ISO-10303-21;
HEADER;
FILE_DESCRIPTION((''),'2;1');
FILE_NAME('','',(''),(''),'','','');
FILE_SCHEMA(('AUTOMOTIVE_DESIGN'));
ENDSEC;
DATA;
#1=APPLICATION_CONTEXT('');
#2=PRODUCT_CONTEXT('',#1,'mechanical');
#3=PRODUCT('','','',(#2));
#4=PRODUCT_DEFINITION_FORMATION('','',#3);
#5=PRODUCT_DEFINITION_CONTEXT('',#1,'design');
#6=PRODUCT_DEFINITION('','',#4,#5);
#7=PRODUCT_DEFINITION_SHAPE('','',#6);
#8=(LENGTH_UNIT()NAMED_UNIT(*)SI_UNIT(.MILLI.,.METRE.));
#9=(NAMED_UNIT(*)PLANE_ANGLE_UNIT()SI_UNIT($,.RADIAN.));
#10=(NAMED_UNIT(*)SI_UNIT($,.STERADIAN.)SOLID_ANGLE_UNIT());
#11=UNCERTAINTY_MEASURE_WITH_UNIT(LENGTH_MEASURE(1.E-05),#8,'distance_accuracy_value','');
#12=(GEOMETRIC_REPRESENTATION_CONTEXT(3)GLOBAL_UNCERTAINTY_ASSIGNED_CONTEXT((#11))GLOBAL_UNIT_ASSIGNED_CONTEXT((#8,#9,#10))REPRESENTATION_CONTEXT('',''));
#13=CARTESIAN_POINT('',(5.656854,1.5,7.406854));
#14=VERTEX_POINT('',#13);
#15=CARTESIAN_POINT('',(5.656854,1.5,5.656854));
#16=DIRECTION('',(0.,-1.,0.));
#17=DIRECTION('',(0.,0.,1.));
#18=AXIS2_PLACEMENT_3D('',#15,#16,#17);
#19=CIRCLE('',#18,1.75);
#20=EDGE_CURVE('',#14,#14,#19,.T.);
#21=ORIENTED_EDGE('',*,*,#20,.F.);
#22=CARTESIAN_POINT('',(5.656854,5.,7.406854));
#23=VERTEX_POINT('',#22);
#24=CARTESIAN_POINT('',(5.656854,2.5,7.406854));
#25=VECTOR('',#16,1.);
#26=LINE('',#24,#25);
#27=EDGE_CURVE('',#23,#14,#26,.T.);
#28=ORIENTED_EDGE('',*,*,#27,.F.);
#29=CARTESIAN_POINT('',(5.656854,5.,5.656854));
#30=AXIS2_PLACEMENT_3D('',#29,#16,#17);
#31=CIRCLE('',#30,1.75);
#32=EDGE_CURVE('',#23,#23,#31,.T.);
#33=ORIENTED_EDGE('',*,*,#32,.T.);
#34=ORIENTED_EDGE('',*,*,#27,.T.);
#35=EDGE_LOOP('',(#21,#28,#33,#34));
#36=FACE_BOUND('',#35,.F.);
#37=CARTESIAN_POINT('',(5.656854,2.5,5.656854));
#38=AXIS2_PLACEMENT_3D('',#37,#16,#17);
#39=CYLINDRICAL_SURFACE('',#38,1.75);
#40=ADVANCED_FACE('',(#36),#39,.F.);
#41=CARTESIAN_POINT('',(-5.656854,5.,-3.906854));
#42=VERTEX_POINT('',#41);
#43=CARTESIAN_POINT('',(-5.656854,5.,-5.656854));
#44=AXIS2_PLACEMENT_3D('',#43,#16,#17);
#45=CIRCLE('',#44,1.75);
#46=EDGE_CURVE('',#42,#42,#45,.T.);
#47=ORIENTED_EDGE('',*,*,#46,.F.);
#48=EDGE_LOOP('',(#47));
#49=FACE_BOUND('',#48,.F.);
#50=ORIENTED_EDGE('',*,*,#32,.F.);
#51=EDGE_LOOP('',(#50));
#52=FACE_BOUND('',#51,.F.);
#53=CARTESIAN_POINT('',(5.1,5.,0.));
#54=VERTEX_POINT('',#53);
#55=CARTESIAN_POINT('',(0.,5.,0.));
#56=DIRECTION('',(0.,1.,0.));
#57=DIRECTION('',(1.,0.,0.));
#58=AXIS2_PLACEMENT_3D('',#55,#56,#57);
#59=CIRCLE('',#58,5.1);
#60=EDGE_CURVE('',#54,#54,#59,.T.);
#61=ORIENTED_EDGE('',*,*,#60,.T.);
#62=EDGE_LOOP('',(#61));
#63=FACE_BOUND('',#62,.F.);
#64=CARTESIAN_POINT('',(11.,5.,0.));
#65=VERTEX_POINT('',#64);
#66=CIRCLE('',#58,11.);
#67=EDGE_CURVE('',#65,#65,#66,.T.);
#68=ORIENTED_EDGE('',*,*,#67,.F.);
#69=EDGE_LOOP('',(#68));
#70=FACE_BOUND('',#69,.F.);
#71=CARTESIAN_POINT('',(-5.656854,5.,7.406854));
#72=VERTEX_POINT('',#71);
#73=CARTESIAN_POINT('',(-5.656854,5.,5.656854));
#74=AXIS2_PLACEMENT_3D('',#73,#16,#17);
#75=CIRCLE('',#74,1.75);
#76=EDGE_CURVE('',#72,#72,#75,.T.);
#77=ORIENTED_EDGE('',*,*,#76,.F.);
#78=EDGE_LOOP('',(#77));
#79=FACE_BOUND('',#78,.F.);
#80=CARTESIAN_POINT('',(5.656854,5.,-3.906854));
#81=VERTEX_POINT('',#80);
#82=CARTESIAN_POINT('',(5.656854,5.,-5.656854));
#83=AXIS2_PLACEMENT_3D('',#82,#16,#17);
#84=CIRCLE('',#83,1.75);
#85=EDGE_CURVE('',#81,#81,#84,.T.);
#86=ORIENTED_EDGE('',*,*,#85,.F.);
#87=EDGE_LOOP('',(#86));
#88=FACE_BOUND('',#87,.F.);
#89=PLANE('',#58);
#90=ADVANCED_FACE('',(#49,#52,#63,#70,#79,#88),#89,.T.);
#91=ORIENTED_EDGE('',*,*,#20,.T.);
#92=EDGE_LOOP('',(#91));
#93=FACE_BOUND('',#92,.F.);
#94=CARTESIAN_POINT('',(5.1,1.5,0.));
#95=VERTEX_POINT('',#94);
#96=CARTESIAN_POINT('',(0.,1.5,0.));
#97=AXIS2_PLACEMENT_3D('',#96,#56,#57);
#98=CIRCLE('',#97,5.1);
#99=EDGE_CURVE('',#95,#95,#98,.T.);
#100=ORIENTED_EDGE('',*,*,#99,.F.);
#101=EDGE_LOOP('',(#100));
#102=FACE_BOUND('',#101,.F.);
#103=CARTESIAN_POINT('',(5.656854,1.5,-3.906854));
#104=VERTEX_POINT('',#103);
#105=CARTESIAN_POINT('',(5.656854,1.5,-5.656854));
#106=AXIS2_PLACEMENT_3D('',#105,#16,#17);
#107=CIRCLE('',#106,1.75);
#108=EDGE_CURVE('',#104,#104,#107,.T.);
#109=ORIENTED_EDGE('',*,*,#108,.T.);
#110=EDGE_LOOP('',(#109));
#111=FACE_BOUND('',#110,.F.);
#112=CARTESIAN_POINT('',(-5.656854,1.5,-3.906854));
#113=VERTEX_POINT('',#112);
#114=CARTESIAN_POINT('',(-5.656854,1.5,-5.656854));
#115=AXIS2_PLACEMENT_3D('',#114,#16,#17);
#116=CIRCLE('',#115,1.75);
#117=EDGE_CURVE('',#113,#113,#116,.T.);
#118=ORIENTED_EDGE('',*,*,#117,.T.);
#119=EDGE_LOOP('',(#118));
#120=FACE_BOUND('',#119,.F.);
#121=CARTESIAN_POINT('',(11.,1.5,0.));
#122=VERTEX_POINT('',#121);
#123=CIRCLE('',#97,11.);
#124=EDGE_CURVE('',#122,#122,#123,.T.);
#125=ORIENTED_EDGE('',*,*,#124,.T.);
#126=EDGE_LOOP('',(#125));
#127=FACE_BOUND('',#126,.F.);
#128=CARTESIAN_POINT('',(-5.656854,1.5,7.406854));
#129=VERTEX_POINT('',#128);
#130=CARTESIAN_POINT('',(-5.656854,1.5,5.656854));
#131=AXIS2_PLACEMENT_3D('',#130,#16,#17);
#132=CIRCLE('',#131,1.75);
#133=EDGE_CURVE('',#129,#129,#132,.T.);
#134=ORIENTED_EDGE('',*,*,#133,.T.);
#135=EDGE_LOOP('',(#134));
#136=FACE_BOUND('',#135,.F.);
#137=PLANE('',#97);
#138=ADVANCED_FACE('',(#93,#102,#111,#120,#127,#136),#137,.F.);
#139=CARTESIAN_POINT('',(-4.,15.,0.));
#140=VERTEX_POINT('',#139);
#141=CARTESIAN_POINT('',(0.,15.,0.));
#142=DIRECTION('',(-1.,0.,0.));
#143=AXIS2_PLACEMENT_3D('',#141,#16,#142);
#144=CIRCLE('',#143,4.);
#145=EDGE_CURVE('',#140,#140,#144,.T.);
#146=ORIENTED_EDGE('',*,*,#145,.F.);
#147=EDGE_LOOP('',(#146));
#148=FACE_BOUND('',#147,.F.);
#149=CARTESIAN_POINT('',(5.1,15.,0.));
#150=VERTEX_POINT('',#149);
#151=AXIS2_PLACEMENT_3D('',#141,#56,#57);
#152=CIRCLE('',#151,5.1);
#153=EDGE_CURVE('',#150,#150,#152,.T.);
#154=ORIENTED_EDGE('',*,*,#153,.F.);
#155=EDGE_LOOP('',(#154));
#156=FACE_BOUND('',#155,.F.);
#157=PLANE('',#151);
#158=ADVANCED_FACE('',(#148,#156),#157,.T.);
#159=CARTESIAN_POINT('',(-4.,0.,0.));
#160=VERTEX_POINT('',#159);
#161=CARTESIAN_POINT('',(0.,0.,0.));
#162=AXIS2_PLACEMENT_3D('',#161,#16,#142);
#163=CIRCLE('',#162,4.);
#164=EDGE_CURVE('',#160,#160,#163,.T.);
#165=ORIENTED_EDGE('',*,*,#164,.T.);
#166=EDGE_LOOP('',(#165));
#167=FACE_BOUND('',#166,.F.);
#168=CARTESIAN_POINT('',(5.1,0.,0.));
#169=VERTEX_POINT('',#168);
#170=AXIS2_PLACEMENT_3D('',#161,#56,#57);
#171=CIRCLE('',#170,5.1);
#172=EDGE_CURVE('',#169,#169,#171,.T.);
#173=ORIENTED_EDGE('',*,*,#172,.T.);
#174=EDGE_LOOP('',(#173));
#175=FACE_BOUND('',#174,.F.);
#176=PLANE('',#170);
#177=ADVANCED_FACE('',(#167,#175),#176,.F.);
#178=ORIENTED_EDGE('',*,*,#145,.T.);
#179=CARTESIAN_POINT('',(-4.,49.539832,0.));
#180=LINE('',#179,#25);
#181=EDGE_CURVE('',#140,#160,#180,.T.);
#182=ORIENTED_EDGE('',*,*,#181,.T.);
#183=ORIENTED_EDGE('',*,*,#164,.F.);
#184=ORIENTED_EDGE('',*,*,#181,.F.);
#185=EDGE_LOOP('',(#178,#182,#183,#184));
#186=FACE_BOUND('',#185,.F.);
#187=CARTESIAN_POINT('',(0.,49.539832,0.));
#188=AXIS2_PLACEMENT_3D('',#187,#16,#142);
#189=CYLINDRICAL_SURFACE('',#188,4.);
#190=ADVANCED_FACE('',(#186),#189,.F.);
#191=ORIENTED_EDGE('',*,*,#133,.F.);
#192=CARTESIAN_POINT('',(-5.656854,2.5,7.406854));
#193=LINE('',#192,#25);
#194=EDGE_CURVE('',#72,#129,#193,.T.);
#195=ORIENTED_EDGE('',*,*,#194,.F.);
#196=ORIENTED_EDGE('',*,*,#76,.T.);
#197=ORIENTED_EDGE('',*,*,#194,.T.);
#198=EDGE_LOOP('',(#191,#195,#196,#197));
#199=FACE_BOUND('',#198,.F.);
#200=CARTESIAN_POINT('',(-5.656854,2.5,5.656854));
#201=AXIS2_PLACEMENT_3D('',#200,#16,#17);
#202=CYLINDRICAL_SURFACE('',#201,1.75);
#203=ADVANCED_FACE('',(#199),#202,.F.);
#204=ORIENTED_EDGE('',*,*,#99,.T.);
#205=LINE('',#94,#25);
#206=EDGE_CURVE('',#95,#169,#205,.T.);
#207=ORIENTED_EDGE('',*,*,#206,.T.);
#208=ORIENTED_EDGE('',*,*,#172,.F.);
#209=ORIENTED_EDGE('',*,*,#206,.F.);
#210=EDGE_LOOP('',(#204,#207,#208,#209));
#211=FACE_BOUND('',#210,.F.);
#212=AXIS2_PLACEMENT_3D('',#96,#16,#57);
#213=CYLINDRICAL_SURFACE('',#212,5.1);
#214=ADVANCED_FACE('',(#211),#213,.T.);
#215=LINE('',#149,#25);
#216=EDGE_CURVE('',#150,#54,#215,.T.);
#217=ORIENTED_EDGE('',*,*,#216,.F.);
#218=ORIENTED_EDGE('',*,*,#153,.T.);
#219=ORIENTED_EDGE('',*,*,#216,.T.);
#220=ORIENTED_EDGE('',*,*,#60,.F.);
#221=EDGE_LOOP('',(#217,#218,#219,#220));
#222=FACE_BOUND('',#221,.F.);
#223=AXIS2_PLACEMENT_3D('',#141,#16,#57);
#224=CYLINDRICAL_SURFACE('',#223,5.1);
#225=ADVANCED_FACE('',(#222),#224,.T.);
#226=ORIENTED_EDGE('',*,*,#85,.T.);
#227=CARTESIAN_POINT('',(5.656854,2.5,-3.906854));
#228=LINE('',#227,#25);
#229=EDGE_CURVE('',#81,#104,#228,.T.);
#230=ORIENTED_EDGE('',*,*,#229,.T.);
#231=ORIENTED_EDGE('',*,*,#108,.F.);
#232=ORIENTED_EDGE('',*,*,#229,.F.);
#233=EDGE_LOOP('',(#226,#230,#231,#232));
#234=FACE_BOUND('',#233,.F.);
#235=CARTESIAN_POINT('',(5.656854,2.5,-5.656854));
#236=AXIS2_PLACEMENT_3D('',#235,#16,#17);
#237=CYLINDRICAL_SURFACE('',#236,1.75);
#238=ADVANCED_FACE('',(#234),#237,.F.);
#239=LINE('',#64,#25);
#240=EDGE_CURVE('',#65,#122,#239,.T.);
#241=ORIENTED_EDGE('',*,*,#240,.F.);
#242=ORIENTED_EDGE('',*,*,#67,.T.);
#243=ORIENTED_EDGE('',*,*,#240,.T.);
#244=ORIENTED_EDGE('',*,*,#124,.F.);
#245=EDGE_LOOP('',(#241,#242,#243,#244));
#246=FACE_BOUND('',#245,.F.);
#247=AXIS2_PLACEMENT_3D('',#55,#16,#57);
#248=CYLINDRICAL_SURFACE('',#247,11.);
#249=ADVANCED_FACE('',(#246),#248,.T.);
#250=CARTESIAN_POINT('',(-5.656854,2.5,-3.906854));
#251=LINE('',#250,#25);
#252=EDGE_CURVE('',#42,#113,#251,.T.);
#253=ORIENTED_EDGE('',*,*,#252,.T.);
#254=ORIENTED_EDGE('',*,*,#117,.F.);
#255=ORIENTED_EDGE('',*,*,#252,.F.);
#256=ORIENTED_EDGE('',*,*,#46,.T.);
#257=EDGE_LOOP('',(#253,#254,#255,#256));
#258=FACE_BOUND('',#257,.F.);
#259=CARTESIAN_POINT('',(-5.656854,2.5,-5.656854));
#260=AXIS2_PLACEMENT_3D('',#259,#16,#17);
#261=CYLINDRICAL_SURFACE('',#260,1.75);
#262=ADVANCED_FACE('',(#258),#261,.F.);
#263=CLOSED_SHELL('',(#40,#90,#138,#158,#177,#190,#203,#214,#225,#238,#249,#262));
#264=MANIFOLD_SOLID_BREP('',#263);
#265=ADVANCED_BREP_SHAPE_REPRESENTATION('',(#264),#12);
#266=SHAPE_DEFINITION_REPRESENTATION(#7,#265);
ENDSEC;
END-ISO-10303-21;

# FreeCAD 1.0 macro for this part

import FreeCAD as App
import Part
import Sketcher

doc = App.newDocument("Part")
body = doc.addObject("PartDesign::Body", "Body")

# Sketch on XY plane
sketch1 = body.newObject("Sketcher::SketchObject", "Sketch")
sketch1.AttachmentSupport = (doc.getObject("XY_Plane"), [""])
sketch1.MapMode = "FlatFace"
sketch1.addGeometry([
    Part.LineSegment(App.Vector(0, 15, 0), App.Vector(0, 0, 0)),  # 0
    Part.LineSegment(App.Vector(0, 0, 0), App.Vector(5.1, 0, 0)),  # 1
    Part.LineSegment(App.Vector(5.1, 0, 0), App.Vector(5.1, 1.5, 0)),  # 2
    Part.LineSegment(App.Vector(5.1, 1.5, 0), App.Vector(11, 1.5, 0)),  # 3
    Part.LineSegment(App.Vector(11, 1.5, 0), App.Vector(11, 5, 0)),  # 4
    Part.LineSegment(App.Vector(11, 5, 0), App.Vector(5.1, 5, 0)),  # 5
    Part.LineSegment(App.Vector(5.1, 5, 0), App.Vector(5.1, 15, 0)),  # 6
    Part.LineSegment(App.Vector(5.1, 15, 0), App.Vector(0, 15, 0)),  # 7
], False)
sketch1.addConstraint([
    Sketcher.Constraint("Coincident", 0, 2, 1, 1),
    Sketcher.Constraint("Coincident", 1, 2, 2, 1),
    Sketcher.Constraint("Coincident", 2, 2, 3, 1),
    Sketcher.Constraint("Coincident", 3, 2, 4, 1),
    Sketcher.Constraint("Coincident", 4, 2, 5, 1),
    Sketcher.Constraint("Coincident", 5, 2, 6, 1),
    Sketcher.Constraint("Coincident", 6, 2, 7, 1),
    Sketcher.Constraint("Coincident", 7, 2, 0, 1),
    Sketcher.Constraint("Vertical", 0),
    Sketcher.Constraint("Horizontal", 1),
    Sketcher.Constraint("Vertical", 2),
    Sketcher.Constraint("Horizontal", 3),
    Sketcher.Constraint("Vertical", 4),
    Sketcher.Constraint("Horizontal", 5),
    Sketcher.Constraint("Vertical", 6),
    Sketcher.Constraint("Horizontal", 7),
    Sketcher.Constraint("Coincident", 0, 2, -1, 1),
    Sketcher.Constraint("Vertical", 2, 2, 5, 2),
    Sketcher.Constraint("DistanceY", 0, 2, 0, 1, 15.0),
    Sketcher.Constraint("DistanceY", 6, 1, 6, 2, 10.0),
    Sketcher.Constraint("DistanceX", 1, 1, 1, 2, 5.1),
    Sketcher.Constraint("DistanceX", 3, 1, 3, 2, 5.9),
    Sketcher.Constraint("DistanceY", 2, 1, 2, 2, 1.5),
])
revolution = body.newObject("PartDesign::Revolution", "Revolution")
revolution.Profile = sketch1
revolution.ReferenceAxis = (sketch1, ["V_Axis"])
revolution.Angle = 360

# Sketch on YZ plane
sketch2 = body.newObject("Sketcher::SketchObject", "Sketch001")
sketch2.AttachmentSupport = (doc.getObject("YZ_Plane"), [""])
sketch2.MapMode = "FlatFace"
sketch2.AttachmentOffset = App.Placement(App.Vector(0, 0, -5.656854), App.Rotation())
sketch2.addGeometry([
    Part.LineSegment(App.Vector(0, 5.7, 0), App.Vector(5, 5.7, 0)),
    Part.LineSegment(App.Vector(5, 5.7, 0), App.Vector(5, 7.4, 0)),
    Part.LineSegment(App.Vector(5, 7.4, 0), App.Vector(0, 7.4, 0)),
    Part.LineSegment(App.Vector(0, 7.4, 0), App.Vector(0, 5.7, 0)),
], False)
sketch2.addGeometry(Part.LineSegment(App.Vector(5, 5.7, 0), App.Vector(0, 5.7, 0)), True)  # axis
sketch2.addConstraint([
    Sketcher.Constraint("Coincident", 0, 2, 1, 1),
    Sketcher.Constraint("Coincident", 1, 2, 2, 1),
    Sketcher.Constraint("Coincident", 2, 2, 3, 1),
    Sketcher.Constraint("Coincident", 3, 2, 0, 1),
    Sketcher.Constraint("Horizontal", 0),
    Sketcher.Constraint("Vertical", 1),
    Sketcher.Constraint("Horizontal", 2),
    Sketcher.Constraint("Vertical", 3),
    Sketcher.Constraint("Horizontal", 4),
    Sketcher.Constraint("Coincident", 4, 1, 0, 2),
    Sketcher.Constraint("PointOnObject", 2, 2, -2),
    Sketcher.Constraint("PointOnObject", 4, 2, -2),
    Sketcher.Constraint("DistanceX", 0, 1, 0, 2, 5.0),
    Sketcher.Constraint("DistanceY", 1, 1, 1, 2, 1.75),
    Sketcher.Constraint("DistanceY", -1, 1, 0, 2, 5.656854),
])
groove = body.newObject("PartDesign::Groove", "Groove")
groove.Profile = sketch2
groove.ReferenceAxis = (sketch2, ["Axis0"])
groove.Angle = 360
doc.recompute()

linearpattern = body.newObject("PartDesign::LinearPattern", "LinearPattern")
linearpattern.Originals = [groove]
linearpattern.Direction = (doc.getObject("X_Axis"), [""])
linearpattern.Mode = "offset"
linearpattern.Offset = 11.313708
linearpattern.Occurrences = 2
body.Tip = linearpattern
doc.recompute()

datumline = body.newObject("PartDesign::Line", "DatumLine")
datumline.Placement = App.Placement(App.Vector(0, 0, 0), App.Rotation(App.Vector(0, 0, 1), App.Vector(0.707106781, 0, -0.707106781)))
linearpattern2 = body.newObject("PartDesign::LinearPattern", "LinearPattern001")
linearpattern2.Originals = [groove]
linearpattern2.Direction = (datumline, [""])
linearpattern2.Mode = "offset"
linearpattern2.Offset = 16
linearpattern2.Occurrences = 2
body.Tip = linearpattern2
doc.recompute()

linearpattern3 = body.newObject("PartDesign::LinearPattern", "LinearPattern002")
linearpattern3.Originals = [groove]
linearpattern3.Direction = (doc.getObject("Z_Axis"), [""])
linearpattern3.Mode = "offset"
linearpattern3.Offset = 11.313708
linearpattern3.Occurrences = 2
linearpattern3.Reversed = True
body.Tip = linearpattern3
doc.recompute()

datumline2 = body.newObject("PartDesign::Line", "DatumLine001")
datumline2.Placement = App.Placement(App.Vector(0, 0, 0), App.Rotation(App.Vector(0, 0, 1), App.Vector(0.707106781, 0, -0.707106781)))
linearpattern4 = body.newObject("PartDesign::LinearPattern", "LinearPattern003")
linearpattern4.Originals = [groove]
linearpattern4.Direction = (datumline2, [""])
linearpattern4.Mode = "offset"
linearpattern4.Offset = 8
linearpattern4.Occurrences = 2
body.Tip = linearpattern4

# Sketch on XZ plane
sketch3 = body.newObject("Sketcher::SketchObject", "Sketch002")
sketch3.AttachmentSupport = (doc.getObject("XZ_Plane"), [""])
sketch3.MapMode = "FlatFace"
sketch3.AttachmentOffset = App.Placement(App.Vector(0, 0, -15), App.Rotation())
sketch3.addGeometry(Part.Circle(App.Vector(0, 0, 0), App.Vector(0, 0, 1), 4), False)
sketch3.addConstraint([
    Sketcher.Constraint("Coincident", 0, 3, -1, 1),
    Sketcher.Constraint("Diameter", 0, 8.0),
])
doc.recompute()
hole = body.newObject("PartDesign::Hole", "Hole")
hole.Profile = sketch3
hole.ThreadType = "None"
hole.Diameter = 8
hole.DepthType = "ThroughAll"
hole.Reversed = True

doc.recompute()
